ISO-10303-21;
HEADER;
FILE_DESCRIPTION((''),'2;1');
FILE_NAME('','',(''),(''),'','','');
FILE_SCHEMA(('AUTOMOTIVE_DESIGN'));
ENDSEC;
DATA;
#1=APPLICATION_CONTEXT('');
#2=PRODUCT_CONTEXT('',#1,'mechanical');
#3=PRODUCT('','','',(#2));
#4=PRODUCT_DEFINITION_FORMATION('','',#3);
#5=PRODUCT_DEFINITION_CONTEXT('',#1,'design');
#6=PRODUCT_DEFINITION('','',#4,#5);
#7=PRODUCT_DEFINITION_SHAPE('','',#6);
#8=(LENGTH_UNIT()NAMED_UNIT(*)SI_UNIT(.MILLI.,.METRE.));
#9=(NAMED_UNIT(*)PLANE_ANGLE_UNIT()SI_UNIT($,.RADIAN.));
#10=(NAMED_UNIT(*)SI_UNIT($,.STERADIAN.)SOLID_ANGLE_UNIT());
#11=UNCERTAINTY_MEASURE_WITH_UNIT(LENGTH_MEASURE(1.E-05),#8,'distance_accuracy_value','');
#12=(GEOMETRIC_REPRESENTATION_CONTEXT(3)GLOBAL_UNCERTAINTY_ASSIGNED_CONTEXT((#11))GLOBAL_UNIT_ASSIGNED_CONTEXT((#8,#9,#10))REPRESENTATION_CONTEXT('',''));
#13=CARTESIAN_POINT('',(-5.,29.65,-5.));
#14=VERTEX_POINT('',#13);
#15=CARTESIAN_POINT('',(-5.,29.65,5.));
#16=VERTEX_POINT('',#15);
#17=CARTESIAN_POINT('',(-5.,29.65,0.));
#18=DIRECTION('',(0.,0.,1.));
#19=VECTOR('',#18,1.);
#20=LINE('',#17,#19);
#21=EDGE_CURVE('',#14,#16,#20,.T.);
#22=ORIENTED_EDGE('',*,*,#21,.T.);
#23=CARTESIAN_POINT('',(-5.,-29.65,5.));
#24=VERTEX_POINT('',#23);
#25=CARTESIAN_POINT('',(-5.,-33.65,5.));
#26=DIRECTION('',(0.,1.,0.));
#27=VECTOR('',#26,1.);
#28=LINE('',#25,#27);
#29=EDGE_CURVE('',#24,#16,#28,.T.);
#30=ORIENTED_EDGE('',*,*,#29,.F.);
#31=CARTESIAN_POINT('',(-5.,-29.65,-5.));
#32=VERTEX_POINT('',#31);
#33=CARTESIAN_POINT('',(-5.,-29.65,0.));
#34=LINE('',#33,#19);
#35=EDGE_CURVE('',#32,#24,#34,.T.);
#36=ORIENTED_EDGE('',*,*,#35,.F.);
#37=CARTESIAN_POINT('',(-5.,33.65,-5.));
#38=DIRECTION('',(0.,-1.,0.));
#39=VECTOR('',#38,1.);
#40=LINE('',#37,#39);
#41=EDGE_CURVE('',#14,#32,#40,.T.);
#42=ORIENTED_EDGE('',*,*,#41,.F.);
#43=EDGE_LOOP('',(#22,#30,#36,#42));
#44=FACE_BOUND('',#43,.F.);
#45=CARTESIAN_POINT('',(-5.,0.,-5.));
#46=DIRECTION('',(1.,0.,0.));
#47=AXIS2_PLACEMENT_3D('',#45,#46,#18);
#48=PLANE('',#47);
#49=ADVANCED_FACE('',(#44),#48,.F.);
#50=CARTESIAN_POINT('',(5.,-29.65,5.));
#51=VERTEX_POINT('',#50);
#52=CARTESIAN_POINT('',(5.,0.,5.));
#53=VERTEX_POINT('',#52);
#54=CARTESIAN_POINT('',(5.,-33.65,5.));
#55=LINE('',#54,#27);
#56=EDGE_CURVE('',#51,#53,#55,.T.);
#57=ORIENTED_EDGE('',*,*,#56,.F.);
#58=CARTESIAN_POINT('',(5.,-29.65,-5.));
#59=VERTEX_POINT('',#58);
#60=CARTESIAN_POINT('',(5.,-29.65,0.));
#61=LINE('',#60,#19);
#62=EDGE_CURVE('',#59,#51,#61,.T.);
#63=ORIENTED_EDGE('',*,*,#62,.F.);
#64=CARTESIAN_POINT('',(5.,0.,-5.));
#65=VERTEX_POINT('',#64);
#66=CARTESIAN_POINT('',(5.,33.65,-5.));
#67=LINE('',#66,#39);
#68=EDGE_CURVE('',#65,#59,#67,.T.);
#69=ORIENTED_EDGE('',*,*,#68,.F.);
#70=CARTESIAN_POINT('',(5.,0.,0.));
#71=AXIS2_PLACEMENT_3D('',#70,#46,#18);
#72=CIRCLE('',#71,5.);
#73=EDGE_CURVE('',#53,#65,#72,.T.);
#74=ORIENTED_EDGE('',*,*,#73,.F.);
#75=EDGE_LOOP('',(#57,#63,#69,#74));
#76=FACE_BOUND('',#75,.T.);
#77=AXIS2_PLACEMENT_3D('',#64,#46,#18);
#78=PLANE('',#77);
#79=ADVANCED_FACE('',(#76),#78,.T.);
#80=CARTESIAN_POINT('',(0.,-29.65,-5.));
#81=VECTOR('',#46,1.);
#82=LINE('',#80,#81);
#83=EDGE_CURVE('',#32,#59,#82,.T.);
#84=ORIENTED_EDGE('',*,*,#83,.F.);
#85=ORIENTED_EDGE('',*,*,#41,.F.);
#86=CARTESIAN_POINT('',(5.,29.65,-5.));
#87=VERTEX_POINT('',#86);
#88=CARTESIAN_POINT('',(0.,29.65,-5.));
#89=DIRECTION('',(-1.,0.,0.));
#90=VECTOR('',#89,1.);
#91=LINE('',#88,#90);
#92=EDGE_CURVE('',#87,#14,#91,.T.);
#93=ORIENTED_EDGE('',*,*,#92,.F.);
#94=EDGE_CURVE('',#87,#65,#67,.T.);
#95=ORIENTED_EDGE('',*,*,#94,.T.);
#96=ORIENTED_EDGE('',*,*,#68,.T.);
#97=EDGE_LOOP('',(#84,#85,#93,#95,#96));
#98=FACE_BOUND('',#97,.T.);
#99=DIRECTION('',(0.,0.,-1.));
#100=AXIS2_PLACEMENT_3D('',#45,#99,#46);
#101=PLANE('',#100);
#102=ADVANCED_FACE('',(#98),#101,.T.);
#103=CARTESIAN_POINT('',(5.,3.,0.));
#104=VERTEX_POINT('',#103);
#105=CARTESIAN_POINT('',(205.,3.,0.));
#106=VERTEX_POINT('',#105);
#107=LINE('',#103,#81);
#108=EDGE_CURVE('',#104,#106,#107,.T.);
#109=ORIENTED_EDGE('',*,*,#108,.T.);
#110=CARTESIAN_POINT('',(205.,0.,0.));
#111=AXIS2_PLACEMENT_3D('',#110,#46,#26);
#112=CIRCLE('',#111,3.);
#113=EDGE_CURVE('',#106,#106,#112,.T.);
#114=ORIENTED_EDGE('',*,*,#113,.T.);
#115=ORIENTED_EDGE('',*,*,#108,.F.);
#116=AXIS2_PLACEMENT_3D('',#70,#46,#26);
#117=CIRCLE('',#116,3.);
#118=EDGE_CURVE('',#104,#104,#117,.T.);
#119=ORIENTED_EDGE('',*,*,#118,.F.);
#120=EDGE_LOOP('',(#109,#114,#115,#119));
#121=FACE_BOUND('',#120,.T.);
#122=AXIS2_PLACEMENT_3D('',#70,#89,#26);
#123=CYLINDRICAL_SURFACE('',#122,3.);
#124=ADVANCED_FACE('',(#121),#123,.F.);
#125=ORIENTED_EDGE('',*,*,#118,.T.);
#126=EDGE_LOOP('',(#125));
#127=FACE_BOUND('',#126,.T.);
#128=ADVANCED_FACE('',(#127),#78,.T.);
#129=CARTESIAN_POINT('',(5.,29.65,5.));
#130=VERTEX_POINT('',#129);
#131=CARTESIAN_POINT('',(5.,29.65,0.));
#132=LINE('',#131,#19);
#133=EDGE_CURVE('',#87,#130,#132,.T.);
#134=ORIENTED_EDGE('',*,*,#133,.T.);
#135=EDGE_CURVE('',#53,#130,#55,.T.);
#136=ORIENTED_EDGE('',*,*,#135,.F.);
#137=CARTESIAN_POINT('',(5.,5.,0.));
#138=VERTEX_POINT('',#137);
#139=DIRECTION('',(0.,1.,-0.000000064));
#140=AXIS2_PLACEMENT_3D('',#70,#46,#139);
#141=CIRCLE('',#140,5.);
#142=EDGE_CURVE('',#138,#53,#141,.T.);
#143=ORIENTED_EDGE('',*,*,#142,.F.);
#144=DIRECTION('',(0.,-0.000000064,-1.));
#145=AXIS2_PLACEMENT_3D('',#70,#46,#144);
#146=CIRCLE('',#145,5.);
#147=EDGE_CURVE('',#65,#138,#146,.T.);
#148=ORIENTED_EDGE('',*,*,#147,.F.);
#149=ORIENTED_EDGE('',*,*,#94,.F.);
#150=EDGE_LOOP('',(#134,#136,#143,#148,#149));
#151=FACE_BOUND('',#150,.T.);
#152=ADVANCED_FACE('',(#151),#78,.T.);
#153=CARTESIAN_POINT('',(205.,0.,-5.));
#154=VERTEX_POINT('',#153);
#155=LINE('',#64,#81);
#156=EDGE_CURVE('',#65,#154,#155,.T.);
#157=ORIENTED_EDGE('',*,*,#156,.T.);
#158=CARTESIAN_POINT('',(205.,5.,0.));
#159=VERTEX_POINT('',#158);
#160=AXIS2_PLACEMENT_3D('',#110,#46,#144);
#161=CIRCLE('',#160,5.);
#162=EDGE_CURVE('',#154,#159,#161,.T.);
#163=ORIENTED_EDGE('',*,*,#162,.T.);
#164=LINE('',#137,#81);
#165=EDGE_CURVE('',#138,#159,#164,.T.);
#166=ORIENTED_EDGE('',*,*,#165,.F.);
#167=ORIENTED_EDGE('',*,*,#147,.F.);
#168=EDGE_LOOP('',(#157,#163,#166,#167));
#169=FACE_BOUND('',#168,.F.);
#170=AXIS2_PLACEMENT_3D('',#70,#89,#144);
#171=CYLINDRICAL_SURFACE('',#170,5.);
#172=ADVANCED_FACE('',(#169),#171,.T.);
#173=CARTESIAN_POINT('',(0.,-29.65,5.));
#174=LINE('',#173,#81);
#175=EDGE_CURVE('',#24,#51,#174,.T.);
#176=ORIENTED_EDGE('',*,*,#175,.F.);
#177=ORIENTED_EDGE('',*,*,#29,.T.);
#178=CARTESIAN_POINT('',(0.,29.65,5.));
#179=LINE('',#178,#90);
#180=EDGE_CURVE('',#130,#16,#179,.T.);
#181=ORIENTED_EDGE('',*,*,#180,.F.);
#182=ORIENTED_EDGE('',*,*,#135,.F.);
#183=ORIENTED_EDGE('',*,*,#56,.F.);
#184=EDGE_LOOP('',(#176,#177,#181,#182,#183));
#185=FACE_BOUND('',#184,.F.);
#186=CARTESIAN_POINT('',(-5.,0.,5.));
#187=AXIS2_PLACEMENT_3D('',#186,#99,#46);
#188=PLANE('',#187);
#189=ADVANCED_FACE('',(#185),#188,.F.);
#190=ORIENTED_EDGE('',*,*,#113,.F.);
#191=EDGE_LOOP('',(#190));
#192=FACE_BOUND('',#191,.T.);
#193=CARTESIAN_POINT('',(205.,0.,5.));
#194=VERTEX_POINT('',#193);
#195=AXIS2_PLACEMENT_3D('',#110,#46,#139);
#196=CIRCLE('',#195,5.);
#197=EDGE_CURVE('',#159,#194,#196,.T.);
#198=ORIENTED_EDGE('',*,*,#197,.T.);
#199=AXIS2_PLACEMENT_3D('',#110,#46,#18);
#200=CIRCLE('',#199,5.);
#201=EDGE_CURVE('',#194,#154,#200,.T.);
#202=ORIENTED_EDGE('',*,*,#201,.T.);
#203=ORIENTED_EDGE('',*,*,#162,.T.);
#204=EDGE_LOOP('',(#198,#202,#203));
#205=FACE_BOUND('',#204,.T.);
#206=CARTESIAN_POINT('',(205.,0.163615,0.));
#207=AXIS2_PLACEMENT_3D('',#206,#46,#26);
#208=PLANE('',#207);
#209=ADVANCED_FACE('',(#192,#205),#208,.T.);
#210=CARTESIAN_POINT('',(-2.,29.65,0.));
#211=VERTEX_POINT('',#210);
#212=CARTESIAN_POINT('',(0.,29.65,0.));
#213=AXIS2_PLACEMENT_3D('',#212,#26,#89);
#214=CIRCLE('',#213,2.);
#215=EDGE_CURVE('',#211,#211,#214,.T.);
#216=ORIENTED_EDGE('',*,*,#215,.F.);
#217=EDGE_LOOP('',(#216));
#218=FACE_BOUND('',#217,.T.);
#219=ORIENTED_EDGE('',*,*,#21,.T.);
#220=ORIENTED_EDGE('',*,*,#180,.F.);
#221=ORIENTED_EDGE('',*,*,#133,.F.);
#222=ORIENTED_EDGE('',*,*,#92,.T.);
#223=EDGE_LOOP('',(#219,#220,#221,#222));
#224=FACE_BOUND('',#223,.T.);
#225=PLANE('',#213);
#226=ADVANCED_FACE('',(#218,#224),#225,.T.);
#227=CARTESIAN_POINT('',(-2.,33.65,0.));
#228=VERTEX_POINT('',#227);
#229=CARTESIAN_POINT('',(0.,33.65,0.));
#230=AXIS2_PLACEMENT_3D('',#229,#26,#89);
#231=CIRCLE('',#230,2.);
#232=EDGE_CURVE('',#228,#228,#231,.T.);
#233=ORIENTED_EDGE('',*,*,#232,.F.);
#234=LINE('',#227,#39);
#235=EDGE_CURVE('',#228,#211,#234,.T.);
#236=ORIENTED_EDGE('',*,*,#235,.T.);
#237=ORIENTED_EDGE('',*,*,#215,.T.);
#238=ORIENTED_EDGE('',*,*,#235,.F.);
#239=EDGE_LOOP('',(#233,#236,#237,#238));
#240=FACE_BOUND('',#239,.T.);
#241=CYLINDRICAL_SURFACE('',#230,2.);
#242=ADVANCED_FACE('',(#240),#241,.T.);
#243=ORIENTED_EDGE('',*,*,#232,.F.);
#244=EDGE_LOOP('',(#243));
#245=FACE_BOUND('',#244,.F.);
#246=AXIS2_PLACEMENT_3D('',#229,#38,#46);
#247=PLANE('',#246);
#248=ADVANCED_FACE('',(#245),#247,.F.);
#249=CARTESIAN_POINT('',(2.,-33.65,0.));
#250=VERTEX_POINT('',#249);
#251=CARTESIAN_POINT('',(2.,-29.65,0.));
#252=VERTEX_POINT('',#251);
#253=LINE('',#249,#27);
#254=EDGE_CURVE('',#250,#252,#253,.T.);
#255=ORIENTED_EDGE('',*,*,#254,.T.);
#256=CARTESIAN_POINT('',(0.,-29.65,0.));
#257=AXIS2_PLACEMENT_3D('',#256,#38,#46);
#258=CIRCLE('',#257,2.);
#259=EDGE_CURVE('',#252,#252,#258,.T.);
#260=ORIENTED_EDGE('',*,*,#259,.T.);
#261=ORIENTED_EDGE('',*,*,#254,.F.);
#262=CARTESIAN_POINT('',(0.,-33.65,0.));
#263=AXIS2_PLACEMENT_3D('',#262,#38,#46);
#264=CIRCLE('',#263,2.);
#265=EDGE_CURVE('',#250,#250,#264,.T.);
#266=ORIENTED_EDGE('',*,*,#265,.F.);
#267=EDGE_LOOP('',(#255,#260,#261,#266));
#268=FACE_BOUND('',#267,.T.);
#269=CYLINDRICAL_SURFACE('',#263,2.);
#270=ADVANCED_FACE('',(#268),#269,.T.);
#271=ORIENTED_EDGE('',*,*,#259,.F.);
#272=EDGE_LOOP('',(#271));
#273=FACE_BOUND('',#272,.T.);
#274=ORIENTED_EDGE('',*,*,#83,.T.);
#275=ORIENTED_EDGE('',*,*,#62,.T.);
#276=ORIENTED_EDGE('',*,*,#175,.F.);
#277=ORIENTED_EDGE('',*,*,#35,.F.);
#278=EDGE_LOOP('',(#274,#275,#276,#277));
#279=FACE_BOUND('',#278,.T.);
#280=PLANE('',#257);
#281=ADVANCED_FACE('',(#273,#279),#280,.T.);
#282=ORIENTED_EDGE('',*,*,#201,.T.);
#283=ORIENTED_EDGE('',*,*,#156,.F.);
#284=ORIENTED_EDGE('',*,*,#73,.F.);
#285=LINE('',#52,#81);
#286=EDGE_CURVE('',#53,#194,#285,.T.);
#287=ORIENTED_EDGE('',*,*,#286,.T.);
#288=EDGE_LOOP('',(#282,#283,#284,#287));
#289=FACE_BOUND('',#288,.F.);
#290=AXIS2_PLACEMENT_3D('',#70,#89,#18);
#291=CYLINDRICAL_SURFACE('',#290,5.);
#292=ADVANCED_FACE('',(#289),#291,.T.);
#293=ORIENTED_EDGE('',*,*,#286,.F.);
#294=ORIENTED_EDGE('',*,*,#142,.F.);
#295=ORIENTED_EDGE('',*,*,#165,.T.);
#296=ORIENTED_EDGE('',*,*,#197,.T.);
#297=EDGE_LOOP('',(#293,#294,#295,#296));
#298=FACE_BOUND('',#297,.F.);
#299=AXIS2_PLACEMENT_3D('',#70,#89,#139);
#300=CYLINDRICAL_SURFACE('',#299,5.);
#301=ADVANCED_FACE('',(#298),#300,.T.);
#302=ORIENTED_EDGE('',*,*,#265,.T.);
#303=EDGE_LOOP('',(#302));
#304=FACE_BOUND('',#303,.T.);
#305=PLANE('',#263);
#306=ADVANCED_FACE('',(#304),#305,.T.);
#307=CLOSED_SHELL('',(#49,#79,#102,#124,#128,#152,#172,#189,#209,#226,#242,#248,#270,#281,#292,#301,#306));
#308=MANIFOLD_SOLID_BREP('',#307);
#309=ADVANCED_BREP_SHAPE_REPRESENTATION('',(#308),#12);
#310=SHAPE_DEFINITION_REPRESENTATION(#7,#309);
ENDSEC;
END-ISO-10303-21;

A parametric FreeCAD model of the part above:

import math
import FreeCAD as App
import Part
import Sketcher

V = App.Vector

doc = App.newDocument("Part")
params = doc.addObject("Spreadsheet::Sheet", "Params")
for row, (alias, value) in enumerate([
    ("sketch1_width", "10 mm"),
    ("pad1_length", "67.3 mm"),
    ("sketch2_diameter", "4 mm"),
    ("sketch2_width", "10 mm"),
    ("pocket1_length", "4 mm"),
    ("sketch3_diameter", "4 mm"),
    ("sketch3_width", "10 mm"),
    ("pocket2_length", "4 mm"),
    ("sketch4_diameter", "6 mm"),
    ("sketch4_radius", "5 mm"),
    ("pad2_length", "200 mm"),
], start=1):
    params.set(f"A{row}", alias)
    params.set(f"B{row}", "=" + value)
    params.setAlias(f"B{row}", alias)

body = doc.addObject("PartDesign::Body", "Body")

# Sketch on XZ plane
sketch1 = body.newObject("Sketcher::SketchObject", "Sketch")
sketch1.AttachmentSupport = (doc.getObject("XZ_Plane"), [""])
sketch1.MapMode = "FlatFace"
sketch1.addGeometry([
    Part.LineSegment(V(-5, 5, 0), V(-5, -5, 0)),
    Part.LineSegment(V(-5, -5, 0), V(5, -5, 0)),
    Part.LineSegment(V(5, -5, 0), V(5, 5, 0)),
    Part.LineSegment(V(5, 5, 0), V(-5, 5, 0)),
], False)
sketch1.addConstraint([
    Sketcher.Constraint("Coincident", 0, 2, 1, 1),
    Sketcher.Constraint("Coincident", 1, 2, 2, 1),
    Sketcher.Constraint("Coincident", 2, 2, 3, 1),
    Sketcher.Constraint("Coincident", 3, 2, 0, 1),
    Sketcher.Constraint("Vertical", 0),
    Sketcher.Constraint("Horizontal", 1),
    Sketcher.Constraint("Vertical", 2),
    Sketcher.Constraint("Horizontal", 3),
    Sketcher.Constraint("Symmetric", 0, 2, 2, 2, -1, 1),
    Sketcher.Constraint("Equal", 3, 0),
    Sketcher.Constraint("DistanceX", 1, 1, 1, 2, 10.0),
])
sketch1.setExpression("Constraints[10]", "Params.sketch1_width")
pad1 = body.newObject("PartDesign::Pad", "Pad")
pad1.Profile = sketch1
pad1.setExpression("Length", "Params.pad1_length")
pad1.Midplane = True

# Sketch on XZ plane
sketch2 = body.newObject("Sketcher::SketchObject", "Sketch001")
sketch2.AttachmentSupport = (doc.getObject("XZ_Plane"), [""])
sketch2.MapMode = "FlatFace"
sketch2.AttachmentOffset = App.Placement(V(0, 0, 33.65), App.Rotation())
sketch2.addGeometry([
    Part.LineSegment(V(-5, 5, 0), V(-5, -5, 0)),  # 0
    Part.LineSegment(V(-5, -5, 0), V(5, -5, 0)),  # 1
    Part.LineSegment(V(5, -5, 0), V(5, 5, 0)),  # 2
    Part.LineSegment(V(5, 5, 0), V(-5, 5, 0)),  # 3
    Part.Circle(V(0, 0, 0), V(0, 0, 1), 2),  # 4
], False)
sketch2.addConstraint([
    Sketcher.Constraint("Coincident", 0, 2, 1, 1),
    Sketcher.Constraint("Coincident", 1, 2, 2, 1),
    Sketcher.Constraint("Coincident", 2, 2, 3, 1),
    Sketcher.Constraint("Coincident", 3, 2, 0, 1),
    Sketcher.Constraint("Vertical", 0),
    Sketcher.Constraint("Horizontal", 1),
    Sketcher.Constraint("Vertical", 2),
    Sketcher.Constraint("Horizontal", 3),
    Sketcher.Constraint("Coincident", 4, 3, -1, 1),
    Sketcher.Constraint("Symmetric", 0, 2, 2, 2, -1, 1),
    Sketcher.Constraint("Equal", 3, 0),
    Sketcher.Constraint("Diameter", 4, 4.0),
    Sketcher.Constraint("DistanceX", 1, 1, 1, 2, 10.0),
])
sketch2.setExpression("Constraints[11]", "Params.sketch2_diameter")
sketch2.setExpression("Constraints[12]", "Params.sketch2_width")
pocket1 = body.newObject("PartDesign::Pocket", "Pocket")
pocket1.Profile = sketch2
pocket1.setExpression("Length", "Params.pocket1_length")

# Sketch on XZ plane
sketch3 = body.newObject("Sketcher::SketchObject", "Sketch002")
sketch3.AttachmentSupport = (doc.getObject("XZ_Plane"), [""])
sketch3.MapMode = "FlatFace"
sketch3.AttachmentOffset = App.Placement(V(0, 0, -33.65), App.Rotation())
sketch3.addGeometry([
    Part.LineSegment(V(5, 5, 0), V(5, -5, 0)),  # 0
    Part.LineSegment(V(5, -5, 0), V(-5, -5, 0)),  # 1
    Part.LineSegment(V(-5, -5, 0), V(-5, 5, 0)),  # 2
    Part.LineSegment(V(-5, 5, 0), V(5, 5, 0)),  # 3
    Part.Circle(V(0, 0, 0), V(0, 0, 1), 2),  # 4
], False)
sketch3.addConstraint([
    Sketcher.Constraint("Coincident", 0, 2, 1, 1),
    Sketcher.Constraint("Coincident", 1, 2, 2, 1),
    Sketcher.Constraint("Coincident", 2, 2, 3, 1),
    Sketcher.Constraint("Coincident", 3, 2, 0, 1),
    Sketcher.Constraint("Vertical", 0),
    Sketcher.Constraint("Horizontal", 1),
    Sketcher.Constraint("Vertical", 2),
    Sketcher.Constraint("Horizontal", 3),
    Sketcher.Constraint("Coincident", 4, 3, -1, 1),
    Sketcher.Constraint("Symmetric", 0, 2, 2, 2, -1, 1),
    Sketcher.Constraint("Equal", 3, 0),
    Sketcher.Constraint("Diameter", 4, 4.0),
    Sketcher.Constraint("DistanceX", 1, 2, 1, 1, 10.0),
])
sketch3.setExpression("Constraints[11]", "Params.sketch3_diameter")
sketch3.setExpression("Constraints[12]", "Params.sketch3_width")
pocket2 = body.newObject("PartDesign::Pocket", "Pocket001")
pocket2.Profile = sketch3
pocket2.setExpression("Length", "Params.pocket2_length")
pocket2.Reversed = True

# Sketch on YZ plane
sketch4 = body.newObject("Sketcher::SketchObject", "Sketch003")
sketch4.AttachmentSupport = (doc.getObject("YZ_Plane"), [""])
sketch4.MapMode = "FlatFace"
sketch4.AttachmentOffset = App.Placement(V(0, 0, 5), App.Rotation())
sketch4.addGeometry([
    Part.ArcOfCircle(Part.Circle(V(0, 0, 0), V(0, 0, 1), 5), math.radians(-90), math.radians(0)),
    Part.ArcOfCircle(Part.Circle(V(0, 0, 0), V(0, 0, 1), 5), math.radians(0), math.radians(90)),
    Part.ArcOfCircle(Part.Circle(V(0, 0, 0), V(0, 0, 1), 5), math.radians(90), math.radians(270)),
    Part.Circle(V(0, 0, 0), V(0, 0, 1), 3),
], False)
sketch4.addConstraint([
    Sketcher.Constraint("Tangent", 0, 2, 1, 1),
    Sketcher.Constraint("Tangent", 1, 2, 2, 1),
    Sketcher.Constraint("Tangent", 2, 2, 0, 1),
    Sketcher.Constraint("Coincident", 0, 3, -1, 1),
    Sketcher.Constraint("Coincident", 3, 3, -1, 1),
    Sketcher.Constraint("PointOnObject", 0, 2, -1),
    Sketcher.Constraint("PointOnObject", 1, 2, -2),
    Sketcher.Constraint("PointOnObject", 2, 2, -2),
    Sketcher.Constraint("Diameter", 3, 6.0),
    Sketcher.Constraint("Radius", 0, 5.0),
])
sketch4.setExpression("Constraints[8]", "Params.sketch4_diameter")
sketch4.setExpression("Constraints[9]", "Params.sketch4_radius")
pad2 = body.newObject("PartDesign::Pad", "Pad001")
pad2.Profile = sketch4
pad2.setExpression("Length", "Params.pad2_length")

doc.recompute()
